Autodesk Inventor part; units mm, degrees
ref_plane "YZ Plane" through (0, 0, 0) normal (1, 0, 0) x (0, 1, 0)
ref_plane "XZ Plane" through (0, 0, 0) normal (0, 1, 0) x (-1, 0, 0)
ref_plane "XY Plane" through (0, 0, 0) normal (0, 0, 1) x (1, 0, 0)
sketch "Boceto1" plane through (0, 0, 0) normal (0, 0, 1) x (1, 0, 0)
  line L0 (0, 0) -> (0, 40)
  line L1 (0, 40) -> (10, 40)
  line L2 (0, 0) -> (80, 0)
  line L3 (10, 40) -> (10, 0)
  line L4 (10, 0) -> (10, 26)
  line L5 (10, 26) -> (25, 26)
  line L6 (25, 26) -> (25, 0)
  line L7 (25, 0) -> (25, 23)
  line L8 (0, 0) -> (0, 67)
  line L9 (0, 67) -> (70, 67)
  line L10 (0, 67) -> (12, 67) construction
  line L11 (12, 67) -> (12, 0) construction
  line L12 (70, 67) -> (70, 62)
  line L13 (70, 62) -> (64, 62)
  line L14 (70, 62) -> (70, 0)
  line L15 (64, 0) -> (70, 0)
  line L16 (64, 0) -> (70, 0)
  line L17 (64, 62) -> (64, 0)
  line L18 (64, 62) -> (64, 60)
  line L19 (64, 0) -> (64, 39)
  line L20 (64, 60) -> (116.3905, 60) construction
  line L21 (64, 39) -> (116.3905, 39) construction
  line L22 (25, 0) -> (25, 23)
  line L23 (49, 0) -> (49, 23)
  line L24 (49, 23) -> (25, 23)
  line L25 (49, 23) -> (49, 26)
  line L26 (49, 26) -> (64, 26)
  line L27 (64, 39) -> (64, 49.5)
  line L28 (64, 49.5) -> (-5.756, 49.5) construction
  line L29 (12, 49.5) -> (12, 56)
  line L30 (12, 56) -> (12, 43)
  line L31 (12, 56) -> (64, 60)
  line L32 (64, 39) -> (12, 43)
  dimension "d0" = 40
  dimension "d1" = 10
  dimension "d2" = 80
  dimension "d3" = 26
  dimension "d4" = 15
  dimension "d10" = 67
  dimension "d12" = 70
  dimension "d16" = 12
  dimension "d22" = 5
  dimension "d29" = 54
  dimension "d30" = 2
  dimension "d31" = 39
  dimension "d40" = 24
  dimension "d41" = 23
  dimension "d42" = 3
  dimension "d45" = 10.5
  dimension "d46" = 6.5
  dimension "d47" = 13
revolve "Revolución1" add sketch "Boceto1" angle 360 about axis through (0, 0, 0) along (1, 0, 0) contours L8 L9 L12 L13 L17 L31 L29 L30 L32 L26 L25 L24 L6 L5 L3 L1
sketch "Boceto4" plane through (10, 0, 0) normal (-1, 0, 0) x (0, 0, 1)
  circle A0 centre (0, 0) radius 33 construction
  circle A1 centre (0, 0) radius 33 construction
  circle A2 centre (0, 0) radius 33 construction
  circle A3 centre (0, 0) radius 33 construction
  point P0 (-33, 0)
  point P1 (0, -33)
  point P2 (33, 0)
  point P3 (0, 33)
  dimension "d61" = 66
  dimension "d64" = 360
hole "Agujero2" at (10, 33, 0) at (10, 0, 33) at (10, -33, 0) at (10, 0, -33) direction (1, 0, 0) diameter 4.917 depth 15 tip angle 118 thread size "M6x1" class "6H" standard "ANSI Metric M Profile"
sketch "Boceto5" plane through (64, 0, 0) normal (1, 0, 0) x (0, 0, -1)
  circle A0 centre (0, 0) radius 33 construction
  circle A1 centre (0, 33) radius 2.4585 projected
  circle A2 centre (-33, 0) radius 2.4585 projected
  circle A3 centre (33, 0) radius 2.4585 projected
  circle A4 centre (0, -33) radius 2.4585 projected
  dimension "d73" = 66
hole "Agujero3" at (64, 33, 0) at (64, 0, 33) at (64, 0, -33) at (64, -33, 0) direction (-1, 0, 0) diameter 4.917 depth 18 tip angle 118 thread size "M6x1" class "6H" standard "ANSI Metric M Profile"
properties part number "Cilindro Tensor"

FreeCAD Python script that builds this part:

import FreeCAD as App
import Part
import Sketcher
Q = App.Units.Quantity

doc = App.newDocument("Part")
params = doc.addObject("Spreadsheet::Sheet", "Params")
for row, (alias, value) in enumerate([
    ("sketch1_width", "10 mm"),
    ("sketch1_width2", "15 mm"),
    ("sketch1_width3", "24 mm"),
    ("sketch1_width4", "70 mm"),
    ("sketch1_height", "3 mm"),
    ("revolution_angle", "360 deg"),
    ("hole_diameter", "4.917 mm"),
    ("hole_depth", "15 mm"),
    ("hole2_diameter", "4.917 mm"),
    ("hole2_depth", "18 mm"),
], start=1):
    params.set(f"A{row}", alias)
    params.set(f"B{row}", "=" + value)
    params.setAlias(f"B{row}", alias)

body = doc.addObject("PartDesign::Body", "Body")

# Sketch on XY plane
sketch1 = body.newObject("Sketcher::SketchObject", "Sketch")
sketch1.AttachmentSupport = (doc.getObject("XY_Plane"), [""])
sketch1.MapMode = "FlatFace"
sketch1.addGeometry([
    Part.LineSegment(App.Vector(0, 67, 0), App.Vector(0, 40, 0)),  # 0
    Part.LineSegment(App.Vector(0, 40, 0), App.Vector(10, 40, 0)),  # 1
    Part.LineSegment(App.Vector(10, 40, 0), App.Vector(10, 26, 0)),  # 2
    Part.LineSegment(App.Vector(10, 26, 0), App.Vector(25, 26, 0)),  # 3
    Part.LineSegment(App.Vector(25, 26, 0), App.Vector(25, 23, 0)),  # 4
    Part.LineSegment(App.Vector(25, 23, 0), App.Vector(49, 23, 0)),  # 5
    Part.LineSegment(App.Vector(49, 23, 0), App.Vector(49, 26, 0)),  # 6
    Part.LineSegment(App.Vector(49, 26, 0), App.Vector(64, 26, 0)),  # 7
    Part.LineSegment(App.Vector(64, 26, 0), App.Vector(64, 39, 0)),  # 8
    Part.LineSegment(App.Vector(64, 39, 0), App.Vector(12, 43, 0)),  # 9
    Part.LineSegment(App.Vector(12, 43, 0), App.Vector(12, 56, 0)),  # 10
    Part.LineSegment(App.Vector(12, 56, 0), App.Vector(64, 60, 0)),  # 11
    Part.LineSegment(App.Vector(64, 60, 0), App.Vector(64, 62, 0)),  # 12
    Part.LineSegment(App.Vector(64, 62, 0), App.Vector(70, 62, 0)),  # 13
    Part.LineSegment(App.Vector(70, 62, 0), App.Vector(70, 67, 0)),  # 14
    Part.LineSegment(App.Vector(70, 67, 0), App.Vector(0, 67, 0)),  # 15
], False)
sketch1.addConstraint([
    Sketcher.Constraint("Coincident", 0, 2, 1, 1),
    Sketcher.Constraint("Coincident", 1, 2, 2, 1),
    Sketcher.Constraint("Coincident", 2, 2, 3, 1),
    Sketcher.Constraint("Coincident", 3, 2, 4, 1),
    Sketcher.Constraint("Coincident", 4, 2, 5, 1),
    Sketcher.Constraint("Coincident", 5, 2, 6, 1),
    Sketcher.Constraint("Coincident", 6, 2, 7, 1),
    Sketcher.Constraint("Coincident", 7, 2, 8, 1),
    Sketcher.Constraint("Coincident", 8, 2, 9, 1),
    Sketcher.Constraint("Coincident", 9, 2, 10, 1),
    Sketcher.Constraint("Coincident", 10, 2, 11, 1),
    Sketcher.Constraint("Coincident", 11, 2, 12, 1),
    Sketcher.Constraint("Coincident", 12, 2, 13, 1),
    Sketcher.Constraint("Coincident", 13, 2, 14, 1),
    Sketcher.Constraint("Coincident", 14, 2, 15, 1),
    Sketcher.Constraint("Coincident", 15, 2, 0, 1),
    Sketcher.Constraint("Vertical", 0),
    Sketcher.Constraint("Horizontal", 1),
    Sketcher.Constraint("Vertical", 2),
    Sketcher.Constraint("Horizontal", 3),
    Sketcher.Constraint("Vertical", 4),
    Sketcher.Constraint("Horizontal", 5),
    Sketcher.Constraint("Vertical", 6),
    Sketcher.Constraint("Horizontal", 7),
    Sketcher.Constraint("Vertical", 8),
    Sketcher.Constraint("Vertical", 10),
    Sketcher.Constraint("Vertical", 12),
    Sketcher.Constraint("Horizontal", 13),
    Sketcher.Constraint("Vertical", 14),
    Sketcher.Constraint("Horizontal", 15),
    Sketcher.Constraint("PointOnObject", 0, 2, -2),
    Sketcher.Constraint("Horizontal", 3, 2, 6, 2),
    Sketcher.Constraint("Vertical", 8, 2, 11, 2),
    Sketcher.Constraint("Equal", 3, 7),
    Sketcher.Constraint("Equal", 8, 10),
    Sketcher.Constraint("Equal", 9, 11),
    Sketcher.Constraint("DistanceX", 1, 1, 1, 2, Q("10 mm")),
    Sketcher.Constraint("DistanceX", 3, 1, 3, 2, Q("15 mm")),
    Sketcher.Constraint("DistanceX", 5, 1, 5, 2, Q("24 mm")),
    Sketcher.Constraint("DistanceX", 15, 2, 15, 1, Q("70 mm")),
    Sketcher.Constraint("DistanceY", 4, 2, 4, 1, Q("3 mm")),
    Sketcher.Constraint("DistanceY", 8, 1, 8, 2, Q("13 mm")),
    Sketcher.Constraint("DistanceY", 12, 1, 12, 2, Q("2 mm")),
    Sketcher.Constraint("DistanceY", 14, 1, 14, 2, Q("5 mm")),
    Sketcher.Constraint("DistanceY", -1, 1, 0, 2, Q("40 mm")),
    Sketcher.Constraint("DistanceY", -1, 1, 2, 2, Q("26 mm")),
    Sketcher.Constraint("DistanceX", -1, 1, 9, 2, Q("12 mm")),
    Sketcher.Constraint("DistanceY", -1, 1, 14, 2, Q("67 mm")),
])
sketch1.setExpression("Constraints[36]", "Params.sketch1_width")
sketch1.setExpression("Constraints[37]", "Params.sketch1_width2")
sketch1.setExpression("Constraints[38]", "Params.sketch1_width3")
sketch1.setExpression("Constraints[39]", "Params.sketch1_width4")
sketch1.setExpression("Constraints[40]", "Params.sketch1_height")
revolution = body.newObject("PartDesign::Revolution", "Revolution")
revolution.Profile = sketch1
revolution.ReferenceAxis = (sketch1, ["H_Axis"])
revolution.setExpression("Angle", "Params.revolution_angle")

# Sketch on YZ plane
sketch2 = body.newObject("Sketcher::SketchObject", "Sketch001")
sketch2.AttachmentSupport = (doc.getObject("YZ_Plane"), [""])
sketch2.MapMode = "FlatFace"
sketch2.AttachmentOffset = App.Placement(App.Vector(0, 0, 10), App.Rotation())
sketch2.addGeometry([
    Part.Circle(App.Vector(33, 0, 0), App.Vector(0, 0, 1), 2.5),
    Part.Circle(App.Vector(0, 33, 0), App.Vector(0, 0, 1), 2.5),
    Part.Circle(App.Vector(-33, 0, 0), App.Vector(0, 0, 1), 2.5),
    Part.Circle(App.Vector(0, -33, 0), App.Vector(0, 0, 1), 2.5),
], False)
sketch2.addConstraint([
    Sketcher.Constraint("Equal", 0, 1),
    Sketcher.Constraint("Equal", 1, 2),
    Sketcher.Constraint("Equal", 2, 3),
    Sketcher.Constraint("Symmetric", 0, 3, 2, 3, -1, 1),
    Sketcher.Constraint("Symmetric", 1, 3, 3, 3, -1, 1),
    Sketcher.Constraint("PointOnObject", 0, 3, -1),
    Sketcher.Constraint("PointOnObject", 1, 3, -2),
    Sketcher.Constraint("Diameter", 0, Q("4.917 mm")),
    Sketcher.Constraint("DistanceX", -1, 1, 0, 3, Q("33 mm")),
    Sketcher.Constraint("DistanceY", -1, 1, 1, 3, Q("33 mm")),
])
doc.recompute()
hole = body.newObject("PartDesign::Hole", "Hole")
hole.Profile = sketch2
hole.ThreadType = "None"
hole.setExpression("Diameter", "Params.hole_diameter")
hole.DepthType = "Dimension"
hole.setExpression("Depth", "Params.hole_depth")
hole.DrillPoint = "Angled"
hole.DrillPointAngle = 118
hole.Reversed = True

# Sketch on YZ plane
sketch3 = body.newObject("Sketcher::SketchObject", "Sketch002")
sketch3.AttachmentSupport = (doc.getObject("YZ_Plane"), [""])
sketch3.MapMode = "FlatFace"
sketch3.AttachmentOffset = App.Placement(App.Vector(0, 0, 64), App.Rotation())
sketch3.addGeometry([
    Part.Circle(App.Vector(33, 0, 0), App.Vector(0, 0, 1), 2.5),
    Part.Circle(App.Vector(0, 33, 0), App.Vector(0, 0, 1), 2.5),
    Part.Circle(App.Vector(0, -33, 0), App.Vector(0, 0, 1), 2.5),
    Part.Circle(App.Vector(-33, 0, 0), App.Vector(0, 0, 1), 2.5),
], False)
sketch3.addConstraint([
    Sketcher.Constraint("Equal", 0, 1),
    Sketcher.Constraint("Equal", 1, 2),
    Sketcher.Constraint("Equal", 2, 3),
    Sketcher.Constraint("Symmetric", 1, 3, 2, 3, -1, 1),
    Sketcher.Constraint("Symmetric", 0, 3, 3, 3, -1, 1),
    Sketcher.Constraint("PointOnObject", 0, 3, -1),
    Sketcher.Constraint("PointOnObject", 1, 3, -2),
    Sketcher.Constraint("Diameter", 0, Q("4.917 mm")),
    Sketcher.Constraint("DistanceX", -1, 1, 0, 3, Q("33 mm")),
    Sketcher.Constraint("DistanceY", -1, 1, 1, 3, Q("33 mm")),
])
doc.recompute()
hole2 = body.newObject("PartDesign::Hole", "Hole001")
hole2.Profile = sketch3
hole2.ThreadType = "None"
hole2.setExpression("Diameter", "Params.hole2_diameter")
hole2.DepthType = "Dimension"
hole2.setExpression("Depth", "Params.hole2_depth")
hole2.DrillPoint = "Angled"
hole2.DrillPointAngle = 118

doc.recompute()
